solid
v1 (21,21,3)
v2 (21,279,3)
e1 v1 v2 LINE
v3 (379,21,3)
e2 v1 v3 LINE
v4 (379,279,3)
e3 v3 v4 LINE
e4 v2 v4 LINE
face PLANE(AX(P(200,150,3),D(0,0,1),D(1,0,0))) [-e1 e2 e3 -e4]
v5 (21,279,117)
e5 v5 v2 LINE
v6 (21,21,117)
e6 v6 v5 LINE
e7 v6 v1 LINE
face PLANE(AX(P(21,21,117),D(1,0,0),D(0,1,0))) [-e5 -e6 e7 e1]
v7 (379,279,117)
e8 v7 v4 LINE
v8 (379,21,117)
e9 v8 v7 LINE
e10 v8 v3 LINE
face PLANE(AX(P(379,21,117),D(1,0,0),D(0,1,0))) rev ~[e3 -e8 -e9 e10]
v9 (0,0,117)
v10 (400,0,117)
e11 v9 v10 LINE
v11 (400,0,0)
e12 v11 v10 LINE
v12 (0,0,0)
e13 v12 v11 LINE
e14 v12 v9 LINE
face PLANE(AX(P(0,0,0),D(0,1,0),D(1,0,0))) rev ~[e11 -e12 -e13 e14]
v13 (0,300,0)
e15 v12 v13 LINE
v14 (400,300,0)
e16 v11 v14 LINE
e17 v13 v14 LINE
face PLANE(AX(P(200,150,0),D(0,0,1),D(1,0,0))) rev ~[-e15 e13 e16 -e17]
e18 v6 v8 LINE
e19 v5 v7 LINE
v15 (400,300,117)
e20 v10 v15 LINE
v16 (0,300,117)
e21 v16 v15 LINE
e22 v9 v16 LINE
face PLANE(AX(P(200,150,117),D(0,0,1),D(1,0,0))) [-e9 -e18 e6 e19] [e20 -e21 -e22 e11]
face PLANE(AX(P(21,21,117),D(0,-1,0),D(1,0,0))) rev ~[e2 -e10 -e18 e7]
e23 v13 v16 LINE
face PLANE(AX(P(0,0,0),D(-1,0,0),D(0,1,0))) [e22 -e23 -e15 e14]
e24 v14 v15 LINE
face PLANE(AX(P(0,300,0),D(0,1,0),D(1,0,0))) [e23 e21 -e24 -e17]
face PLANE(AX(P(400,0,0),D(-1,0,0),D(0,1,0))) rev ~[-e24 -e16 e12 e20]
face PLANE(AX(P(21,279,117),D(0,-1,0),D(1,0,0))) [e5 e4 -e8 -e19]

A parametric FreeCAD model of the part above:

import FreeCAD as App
import Part
import Sketcher


def add_polygon(sketch, points):
    """Adds a closed chain of lines whose ends are joined by coincident constraints."""
    first, n = sketch.GeometryCount, len(points)
    for a, b in zip(points, points[1:] + points[:1]):
        sketch.addGeometry(Part.LineSegment(App.Vector(*a, 0), App.Vector(*b, 0)), False)
    for i in range(n):
        sketch.addConstraint(Sketcher.Constraint("Coincident", first + i, 2, first + (i + 1) % n, 1))

doc = App.newDocument("Part")
params = doc.addObject("Spreadsheet::Sheet", "Params")
for row, (alias, value) in enumerate([
    ("sketch1_width", "400 mm"),
    ("sketch1_height", "300 mm"),
    ("pad1_length", "117 mm"),
    ("sketch2_width", "358 mm"),
    ("sketch2_height", "258 mm"),
    ("pocket1_length", "114 mm"),
], start=1):
    params.set(f"A{row}", alias)
    params.set(f"B{row}", "=" + value)
    params.setAlias(f"B{row}", alias)

body = doc.addObject("PartDesign::Body", "Body")

sketch1 = doc.addObject("Sketcher::SketchObject", "Sketch")
body.addObject(sketch1)
sketch1.AttachmentSupport = (doc.XY_Plane, [""])
sketch1.MapMode = "FlatFace"
add_polygon(sketch1, [(0, 300), (0, 0), (400, 0), (400, 300)])
sketch1.addConstraint([
    Sketcher.Constraint("Vertical", 0),
    Sketcher.Constraint("Horizontal", 1),
    Sketcher.Constraint("Vertical", 2),
    Sketcher.Constraint("Horizontal", 3),
    Sketcher.Constraint("Coincident", 0, 2, -1, 1),
    Sketcher.Constraint("DistanceX", 1, 1, 1, 2, 400.0),
    Sketcher.Constraint("DistanceY", 0, 2, 0, 1, 300.0),
])
sketch1.setExpression("Constraints[9]", "Params.sketch1_width")
sketch1.setExpression("Constraints[10]", "Params.sketch1_height")
pad1 = doc.addObject("PartDesign::Pad", "Pad")
body.addObject(pad1)
pad1.Profile = sketch1
pad1.setExpression("Length", "Params.pad1_length")

sketch2 = doc.addObject("Sketcher::SketchObject", "Sketch001")
body.addObject(sketch2)
sketch2.AttachmentSupport = (doc.XY_Plane, [""])
sketch2.MapMode = "FlatFace"
sketch2.AttachmentOffset = App.Placement(App.Vector(0, 0, 117), App.Rotation())
add_polygon(sketch2, [(21, 279), (21, 21), (379, 21), (379, 279)])
sketch2.addConstraint([
    Sketcher.Constraint("Vertical", 0),
    Sketcher.Constraint("Horizontal", 1),
    Sketcher.Constraint("Vertical", 2),
    Sketcher.Constraint("Horizontal", 3),
    Sketcher.Constraint("DistanceX", 1, 1, 1, 2, 358.0),
    Sketcher.Constraint("DistanceY", 0, 2, 0, 1, 258.0),
    Sketcher.Constraint("DistanceX", -1, 1, 0, 2, 21.0),
    Sketcher.Constraint("DistanceY", -1, 1, 0, 2, 21.0),
])
sketch2.setExpression("Constraints[8]", "Params.sketch2_width")
sketch2.setExpression("Constraints[9]", "Params.sketch2_height")
pocket1 = doc.addObject("PartDesign::Pocket", "Pocket")
body.addObject(pocket1)
pocket1.Profile = sketch2
pocket1.setExpression("Length", "Params.pocket1_length")

doc.recompute()
